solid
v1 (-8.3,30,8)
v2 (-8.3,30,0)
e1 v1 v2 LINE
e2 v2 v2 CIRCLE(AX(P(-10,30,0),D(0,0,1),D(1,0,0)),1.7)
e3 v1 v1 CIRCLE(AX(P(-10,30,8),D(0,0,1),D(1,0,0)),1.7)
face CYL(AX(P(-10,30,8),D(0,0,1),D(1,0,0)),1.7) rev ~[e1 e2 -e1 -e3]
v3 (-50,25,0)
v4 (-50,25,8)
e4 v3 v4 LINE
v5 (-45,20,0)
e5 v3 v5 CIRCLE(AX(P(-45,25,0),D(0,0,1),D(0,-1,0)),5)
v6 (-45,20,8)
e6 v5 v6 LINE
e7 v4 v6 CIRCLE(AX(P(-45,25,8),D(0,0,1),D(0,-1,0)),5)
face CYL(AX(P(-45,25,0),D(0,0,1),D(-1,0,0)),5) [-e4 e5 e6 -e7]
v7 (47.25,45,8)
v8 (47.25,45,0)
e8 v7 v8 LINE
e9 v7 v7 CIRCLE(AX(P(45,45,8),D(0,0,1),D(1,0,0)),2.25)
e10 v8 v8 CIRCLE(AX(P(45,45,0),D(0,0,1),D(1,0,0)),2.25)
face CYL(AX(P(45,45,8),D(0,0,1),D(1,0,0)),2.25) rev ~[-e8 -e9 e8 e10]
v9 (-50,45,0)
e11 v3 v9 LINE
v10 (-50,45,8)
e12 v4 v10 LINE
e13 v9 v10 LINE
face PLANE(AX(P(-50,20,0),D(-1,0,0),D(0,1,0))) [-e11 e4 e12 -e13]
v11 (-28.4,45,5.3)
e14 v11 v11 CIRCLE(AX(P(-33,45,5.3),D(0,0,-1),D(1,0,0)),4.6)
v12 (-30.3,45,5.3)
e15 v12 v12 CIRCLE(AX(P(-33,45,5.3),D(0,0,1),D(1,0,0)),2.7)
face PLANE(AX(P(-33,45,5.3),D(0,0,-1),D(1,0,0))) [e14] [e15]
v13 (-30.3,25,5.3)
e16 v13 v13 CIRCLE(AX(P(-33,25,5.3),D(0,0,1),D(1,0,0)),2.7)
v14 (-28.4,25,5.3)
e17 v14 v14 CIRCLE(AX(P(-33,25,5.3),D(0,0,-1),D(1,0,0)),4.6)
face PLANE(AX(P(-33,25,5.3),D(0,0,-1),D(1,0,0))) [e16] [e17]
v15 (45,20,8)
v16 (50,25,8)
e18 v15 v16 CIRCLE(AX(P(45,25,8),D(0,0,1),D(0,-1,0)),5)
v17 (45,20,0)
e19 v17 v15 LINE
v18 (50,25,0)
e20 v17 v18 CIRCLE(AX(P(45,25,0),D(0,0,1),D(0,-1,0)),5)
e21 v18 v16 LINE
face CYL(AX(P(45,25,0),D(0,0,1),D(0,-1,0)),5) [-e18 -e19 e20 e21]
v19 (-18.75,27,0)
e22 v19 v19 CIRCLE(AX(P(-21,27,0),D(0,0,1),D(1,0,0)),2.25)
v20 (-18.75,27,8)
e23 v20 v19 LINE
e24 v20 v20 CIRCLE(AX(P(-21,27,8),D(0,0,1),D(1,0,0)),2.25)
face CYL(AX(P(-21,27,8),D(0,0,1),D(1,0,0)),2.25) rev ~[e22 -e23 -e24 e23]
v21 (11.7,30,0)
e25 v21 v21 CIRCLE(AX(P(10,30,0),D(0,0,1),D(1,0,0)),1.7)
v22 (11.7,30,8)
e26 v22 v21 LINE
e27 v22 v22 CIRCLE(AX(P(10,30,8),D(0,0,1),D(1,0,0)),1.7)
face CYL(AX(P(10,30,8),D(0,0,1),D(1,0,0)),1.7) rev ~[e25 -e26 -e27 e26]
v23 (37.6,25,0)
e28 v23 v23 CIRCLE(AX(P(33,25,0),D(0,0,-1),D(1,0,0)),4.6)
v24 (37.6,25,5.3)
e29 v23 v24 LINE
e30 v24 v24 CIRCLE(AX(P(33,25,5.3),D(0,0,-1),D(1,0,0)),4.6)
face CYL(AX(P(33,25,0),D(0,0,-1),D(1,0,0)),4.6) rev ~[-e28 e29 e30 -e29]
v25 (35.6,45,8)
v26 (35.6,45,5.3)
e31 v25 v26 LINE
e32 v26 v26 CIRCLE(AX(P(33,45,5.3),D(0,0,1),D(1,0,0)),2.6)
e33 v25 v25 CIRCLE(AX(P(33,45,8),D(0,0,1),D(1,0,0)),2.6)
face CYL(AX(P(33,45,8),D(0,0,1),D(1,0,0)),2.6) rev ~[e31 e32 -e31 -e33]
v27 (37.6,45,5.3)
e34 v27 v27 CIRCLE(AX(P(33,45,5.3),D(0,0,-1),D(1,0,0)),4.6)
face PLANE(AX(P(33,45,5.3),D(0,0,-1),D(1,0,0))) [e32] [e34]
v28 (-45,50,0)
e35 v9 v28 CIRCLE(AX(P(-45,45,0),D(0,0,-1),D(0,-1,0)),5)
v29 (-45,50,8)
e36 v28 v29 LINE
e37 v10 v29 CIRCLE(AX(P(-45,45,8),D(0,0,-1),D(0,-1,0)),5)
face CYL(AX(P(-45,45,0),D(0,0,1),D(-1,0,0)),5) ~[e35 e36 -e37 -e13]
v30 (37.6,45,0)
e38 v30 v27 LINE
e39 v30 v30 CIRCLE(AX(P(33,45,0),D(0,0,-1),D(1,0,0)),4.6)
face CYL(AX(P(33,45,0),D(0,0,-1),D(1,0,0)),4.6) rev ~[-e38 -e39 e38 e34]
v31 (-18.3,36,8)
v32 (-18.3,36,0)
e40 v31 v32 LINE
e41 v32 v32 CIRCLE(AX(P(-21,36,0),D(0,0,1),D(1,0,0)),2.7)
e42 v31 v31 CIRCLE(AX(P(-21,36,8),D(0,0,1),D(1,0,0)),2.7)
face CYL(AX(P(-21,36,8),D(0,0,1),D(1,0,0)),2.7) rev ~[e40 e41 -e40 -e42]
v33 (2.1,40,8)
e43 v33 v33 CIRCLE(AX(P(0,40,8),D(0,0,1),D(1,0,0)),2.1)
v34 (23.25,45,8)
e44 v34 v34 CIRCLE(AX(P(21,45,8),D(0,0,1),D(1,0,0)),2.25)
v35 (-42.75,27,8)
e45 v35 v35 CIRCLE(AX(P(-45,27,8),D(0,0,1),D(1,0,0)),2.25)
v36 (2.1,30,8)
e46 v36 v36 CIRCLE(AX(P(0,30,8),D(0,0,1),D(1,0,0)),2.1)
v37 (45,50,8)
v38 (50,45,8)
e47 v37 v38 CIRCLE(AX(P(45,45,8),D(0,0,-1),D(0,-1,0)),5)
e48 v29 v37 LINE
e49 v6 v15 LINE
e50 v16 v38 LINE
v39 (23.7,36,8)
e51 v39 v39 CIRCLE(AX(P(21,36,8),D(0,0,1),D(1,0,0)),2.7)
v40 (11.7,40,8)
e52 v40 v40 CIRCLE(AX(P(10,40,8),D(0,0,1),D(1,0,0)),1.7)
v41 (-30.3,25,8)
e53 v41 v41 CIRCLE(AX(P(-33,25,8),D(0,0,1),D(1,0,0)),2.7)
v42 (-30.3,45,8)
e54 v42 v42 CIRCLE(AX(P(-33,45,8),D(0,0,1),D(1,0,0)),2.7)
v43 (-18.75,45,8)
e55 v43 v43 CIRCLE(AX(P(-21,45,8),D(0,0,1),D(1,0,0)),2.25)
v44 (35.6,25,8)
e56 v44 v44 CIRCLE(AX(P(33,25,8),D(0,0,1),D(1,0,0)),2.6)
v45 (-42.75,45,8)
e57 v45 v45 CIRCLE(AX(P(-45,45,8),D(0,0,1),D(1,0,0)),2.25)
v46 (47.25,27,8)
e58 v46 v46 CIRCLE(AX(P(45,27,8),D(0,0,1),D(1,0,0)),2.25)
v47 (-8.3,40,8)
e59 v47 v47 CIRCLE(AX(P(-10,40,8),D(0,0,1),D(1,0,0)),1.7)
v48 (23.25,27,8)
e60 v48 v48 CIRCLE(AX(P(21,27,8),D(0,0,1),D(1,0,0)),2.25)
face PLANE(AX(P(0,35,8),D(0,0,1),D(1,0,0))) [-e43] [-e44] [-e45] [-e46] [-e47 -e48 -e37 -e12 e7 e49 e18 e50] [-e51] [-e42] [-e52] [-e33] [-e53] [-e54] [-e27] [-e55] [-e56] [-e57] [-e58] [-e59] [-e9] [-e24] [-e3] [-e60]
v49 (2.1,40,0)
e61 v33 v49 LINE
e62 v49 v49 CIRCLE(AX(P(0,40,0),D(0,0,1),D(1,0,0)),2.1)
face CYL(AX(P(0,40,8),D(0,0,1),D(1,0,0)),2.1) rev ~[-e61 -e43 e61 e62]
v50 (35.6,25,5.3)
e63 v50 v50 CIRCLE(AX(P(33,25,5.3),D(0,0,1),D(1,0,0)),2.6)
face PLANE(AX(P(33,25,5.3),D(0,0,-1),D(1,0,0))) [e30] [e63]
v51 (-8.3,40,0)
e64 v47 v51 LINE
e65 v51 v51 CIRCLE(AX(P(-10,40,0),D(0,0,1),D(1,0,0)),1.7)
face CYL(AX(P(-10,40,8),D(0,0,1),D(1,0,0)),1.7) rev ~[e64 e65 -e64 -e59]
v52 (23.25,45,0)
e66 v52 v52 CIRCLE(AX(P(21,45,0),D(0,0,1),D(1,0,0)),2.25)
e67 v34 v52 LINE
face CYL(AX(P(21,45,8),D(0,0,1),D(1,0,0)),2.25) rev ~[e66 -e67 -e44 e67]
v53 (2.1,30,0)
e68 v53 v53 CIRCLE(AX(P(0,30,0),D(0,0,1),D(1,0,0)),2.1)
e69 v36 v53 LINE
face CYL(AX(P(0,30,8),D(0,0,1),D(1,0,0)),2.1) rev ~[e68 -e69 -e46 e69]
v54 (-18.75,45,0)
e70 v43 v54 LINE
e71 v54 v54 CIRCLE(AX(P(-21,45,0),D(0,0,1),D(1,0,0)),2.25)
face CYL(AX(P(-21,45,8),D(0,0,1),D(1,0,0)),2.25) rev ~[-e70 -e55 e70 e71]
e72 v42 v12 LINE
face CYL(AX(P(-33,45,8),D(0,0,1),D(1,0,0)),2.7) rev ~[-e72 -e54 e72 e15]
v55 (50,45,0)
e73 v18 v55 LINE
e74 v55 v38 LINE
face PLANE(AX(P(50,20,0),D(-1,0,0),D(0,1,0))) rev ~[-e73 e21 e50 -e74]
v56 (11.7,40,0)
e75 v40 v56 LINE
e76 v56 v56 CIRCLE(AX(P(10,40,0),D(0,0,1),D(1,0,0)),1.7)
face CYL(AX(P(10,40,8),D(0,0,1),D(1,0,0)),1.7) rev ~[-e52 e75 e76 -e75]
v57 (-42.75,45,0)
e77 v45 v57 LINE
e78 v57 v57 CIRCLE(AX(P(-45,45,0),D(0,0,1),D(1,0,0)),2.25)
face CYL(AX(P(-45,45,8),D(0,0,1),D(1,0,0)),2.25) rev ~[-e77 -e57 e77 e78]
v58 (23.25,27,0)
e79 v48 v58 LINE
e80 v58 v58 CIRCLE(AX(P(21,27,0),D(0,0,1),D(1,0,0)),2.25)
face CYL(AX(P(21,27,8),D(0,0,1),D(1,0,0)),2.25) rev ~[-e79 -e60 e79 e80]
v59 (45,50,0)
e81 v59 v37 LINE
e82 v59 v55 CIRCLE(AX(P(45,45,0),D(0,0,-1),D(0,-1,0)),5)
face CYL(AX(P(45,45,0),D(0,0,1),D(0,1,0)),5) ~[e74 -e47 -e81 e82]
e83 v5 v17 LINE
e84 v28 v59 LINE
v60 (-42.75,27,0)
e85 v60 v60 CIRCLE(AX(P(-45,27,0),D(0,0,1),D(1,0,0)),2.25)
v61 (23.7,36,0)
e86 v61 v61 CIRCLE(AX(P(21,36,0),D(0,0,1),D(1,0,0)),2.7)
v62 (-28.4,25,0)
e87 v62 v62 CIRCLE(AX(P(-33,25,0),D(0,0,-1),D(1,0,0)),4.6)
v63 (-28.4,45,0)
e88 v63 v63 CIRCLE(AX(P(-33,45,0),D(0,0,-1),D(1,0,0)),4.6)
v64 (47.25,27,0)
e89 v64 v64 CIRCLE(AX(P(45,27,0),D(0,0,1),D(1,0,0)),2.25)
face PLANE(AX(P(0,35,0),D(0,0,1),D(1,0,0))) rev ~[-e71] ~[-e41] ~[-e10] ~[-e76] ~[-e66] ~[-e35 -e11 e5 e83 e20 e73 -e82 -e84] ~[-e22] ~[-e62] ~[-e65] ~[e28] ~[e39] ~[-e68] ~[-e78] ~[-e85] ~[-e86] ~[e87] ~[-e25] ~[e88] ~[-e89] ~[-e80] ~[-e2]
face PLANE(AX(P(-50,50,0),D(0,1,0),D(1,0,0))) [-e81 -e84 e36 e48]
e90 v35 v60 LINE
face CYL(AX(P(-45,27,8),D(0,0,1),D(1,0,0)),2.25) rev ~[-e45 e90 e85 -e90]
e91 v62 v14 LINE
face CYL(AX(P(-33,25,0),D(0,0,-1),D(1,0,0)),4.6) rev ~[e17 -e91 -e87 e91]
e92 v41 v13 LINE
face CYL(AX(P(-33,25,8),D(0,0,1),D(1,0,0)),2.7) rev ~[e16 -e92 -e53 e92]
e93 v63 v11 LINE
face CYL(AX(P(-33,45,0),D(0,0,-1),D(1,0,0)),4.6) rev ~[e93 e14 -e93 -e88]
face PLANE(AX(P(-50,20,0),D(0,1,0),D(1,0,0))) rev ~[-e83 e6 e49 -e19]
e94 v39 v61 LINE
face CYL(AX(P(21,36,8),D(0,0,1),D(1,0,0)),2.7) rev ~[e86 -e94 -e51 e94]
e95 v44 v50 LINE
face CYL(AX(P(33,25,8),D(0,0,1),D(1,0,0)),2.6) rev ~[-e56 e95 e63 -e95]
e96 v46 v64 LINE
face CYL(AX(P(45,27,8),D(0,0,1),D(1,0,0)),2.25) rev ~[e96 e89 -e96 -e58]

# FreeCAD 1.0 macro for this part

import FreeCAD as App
import Part
import Sketcher

V = App.Vector
Q = App.Units.Quantity


def edges_at(feature, points):
    """Names of the edges that pass closest to the given points."""
    edges = feature.Shape.Edges
    near = lambda p: min(range(len(edges)), key=lambda i: edges[i].distToShape(Part.Vertex(*p))[0])
    return sorted({f"Edge{near(p) + 1}" for p in points})

doc = App.newDocument("Part")
body = doc.addObject("PartDesign::Body", "Body")

# Sketch on XY plane
sketch1 = body.newObject("Sketcher::SketchObject", "Sketch")
sketch1.AttachmentSupport = (doc.getObject("XY_Plane"), [""])
sketch1.MapMode = "FlatFace"
sketch1.addGeometry([
    Part.LineSegment(V(-50, 50, 0), V(-50, 20, 0)),
    Part.LineSegment(V(-50, 20, 0), V(50, 20, 0)),
    Part.LineSegment(V(50, 20, 0), V(50, 50, 0)),
    Part.LineSegment(V(50, 50, 0), V(-50, 50, 0)),
], False)
sketch1.addConstraint([
    Sketcher.Constraint("Coincident", 0, 2, 1, 1),
    Sketcher.Constraint("Coincident", 1, 2, 2, 1),
    Sketcher.Constraint("Coincident", 2, 2, 3, 1),
    Sketcher.Constraint("Coincident", 3, 2, 0, 1),
    Sketcher.Constraint("Vertical", 0),
    Sketcher.Constraint("Horizontal", 1),
    Sketcher.Constraint("Vertical", 2),
    Sketcher.Constraint("Horizontal", 3),
    Sketcher.Constraint("DistanceX", 1, 1, 1, 2, Q("100 mm")),
    Sketcher.Constraint("DistanceY", 0, 2, 0, 1, Q("30 mm")),
    Sketcher.Constraint("DistanceX", 0, 2, -1, 1, Q("50 mm")),
    Sketcher.Constraint("DistanceY", -1, 1, 0, 2, Q("20 mm")),
])
pad1 = body.newObject("PartDesign::Pad", "Pad")
pad1.Profile = sketch1
pad1.Length = 8

# Sketch on XY plane
sketch2 = body.newObject("Sketcher::SketchObject", "Sketch001")
sketch2.AttachmentSupport = (doc.getObject("XY_Plane"), [""])
sketch2.MapMode = "FlatFace"
sketch2.AttachmentOffset = App.Placement(V(0, 0, 8), App.Rotation())
sketch2.addGeometry([
    Part.Circle(V(-21, 45, 0), V(0, 0, 1), 2.2),  # 0
    Part.Circle(V(-45, 27, 0), V(0, 0, 1), 2.2),  # 1
    Part.Circle(V(-45, 45, 0), V(0, 0, 1), 2.2),  # 2
    Part.Circle(V(-21, 27, 0), V(0, 0, 1), 2.2),  # 3
    Part.Circle(V(21, 27, 0), V(0, 0, 1), 2.2),  # 4
    Part.Circle(V(21, 45, 0), V(0, 0, 1), 2.2),  # 5
    Part.Circle(V(45, 27, 0), V(0, 0, 1), 2.2),  # 6
    Part.Circle(V(45, 45, 0), V(0, 0, 1), 2.2),  # 7
    Part.Circle(V(-33, 45, 0), V(0, 0, 1), 2.7),  # 8
    Part.Circle(V(-33, 25, 0), V(0, 0, 1), 2.7),  # 9
    Part.Circle(V(33, 45, 0), V(0, 0, 1), 2.6),  # 10
    Part.Circle(V(33, 25, 0), V(0, 0, 1), 2.6),  # 11
    Part.Circle(V(-21, 36, 0), V(0, 0, 1), 2.7),  # 12
    Part.Circle(V(21, 36, 0), V(0, 0, 1), 2.7),  # 13
    Part.Circle(V(0, 30, 0), V(0, 0, 1), 2.1),  # 14
    Part.Circle(V(0, 40, 0), V(0, 0, 1), 2.1),  # 15
], False)
sketch2.addConstraint([
    Sketcher.Constraint("Equal", 0, 1),
    Sketcher.Constraint("Equal", 1, 2),
    Sketcher.Constraint("Equal", 2, 3),
    Sketcher.Constraint("Equal", 3, 4),
    Sketcher.Constraint("Equal", 4, 5),
    Sketcher.Constraint("Equal", 5, 6),
    Sketcher.Constraint("Equal", 6, 7),
    Sketcher.Constraint("Equal", 8, 9),
    Sketcher.Constraint("Equal", 10, 11),
    Sketcher.Constraint("Equal", 9, 12),
    Sketcher.Constraint("Equal", 12, 13),
    Sketcher.Constraint("Equal", 14, 15),
    Sketcher.Constraint("Symmetric", 3, 3, 4, 3, -2),
    Sketcher.Constraint("Symmetric", 0, 3, 5, 3, -2),
    Sketcher.Constraint("Symmetric", 1, 3, 6, 3, -2),
    Sketcher.Constraint("Symmetric", 2, 3, 7, 3, -2),
    Sketcher.Constraint("Symmetric", 8, 3, 10, 3, -2),
    Sketcher.Constraint("Symmetric", 9, 3, 11, 3, -2),
    Sketcher.Constraint("Symmetric", 12, 3, 13, 3, -2),
    Sketcher.Constraint("PointOnObject", 14, 3, -2),
    Sketcher.Constraint("PointOnObject", 15, 3, -2),
    Sketcher.Constraint("Horizontal", 0, 3, 2, 3),
    Sketcher.Constraint("Horizontal", 1, 3, 3, 3),
    Sketcher.Constraint("Horizontal", 7, 3, 8, 3),
    Sketcher.Constraint("Vertical", 1, 3, 2, 3),
    Sketcher.Constraint("Vertical", 0, 3, 3, 3),
    Sketcher.Constraint("Vertical", 8, 3, 9, 3),
    Sketcher.Constraint("Vertical", 3, 3, 12, 3),
    Sketcher.Constraint("Diameter", 0, Q("4.5 mm")),
    Sketcher.Constraint("Diameter", 8, Q("5.4 mm")),
    Sketcher.Constraint("Diameter", 10, Q("5.2 mm")),
    Sketcher.Constraint("Diameter", 14, Q("4.2 mm")),
    Sketcher.Constraint("DistanceX", 0, 3, -1, 1, Q("21 mm")),
    Sketcher.Constraint("DistanceY", -1, 1, 0, 3, Q("45 mm")),
    Sketcher.Constraint("DistanceX", 1, 3, -1, 1, Q("45 mm")),
    Sketcher.Constraint("DistanceY", -1, 1, 1, 3, Q("27 mm")),
    Sketcher.Constraint("DistanceX", 8, 3, -1, 1, Q("33 mm")),
    Sketcher.Constraint("DistanceY", -1, 1, 9, 3, Q("25 mm")),
    Sketcher.Constraint("DistanceY", -1, 1, 12, 3, Q("36 mm")),
    Sketcher.Constraint("DistanceY", -1, 1, 14, 3, Q("30 mm")),
    Sketcher.Constraint("DistanceY", -1, 1, 15, 3, Q("40 mm")),
])
pocket1 = body.newObject("PartDesign::Pocket", "Pocket")
pocket1.Profile = sketch2
pocket1.Type = "ThroughAll"

# Sketch on XY plane
sketch3 = body.newObject("Sketcher::SketchObject", "Sketch002")
sketch3.AttachmentSupport = (doc.getObject("XY_Plane"), [""])
sketch3.MapMode = "FlatFace"
sketch3.AttachmentOffset = App.Placement(V(0, 0, 8), App.Rotation())
sketch3.addGeometry([
    Part.Circle(V(-10, 30, 0), V(0, 0, 1), 1.7),
    Part.Circle(V(-10, 40, 0), V(0, 0, 1), 1.7),
    Part.Circle(V(10, 40, 0), V(0, 0, 1), 1.7),
    Part.Circle(V(10, 30, 0), V(0, 0, 1), 1.7),
], False)
sketch3.addConstraint([
    Sketcher.Constraint("Equal", 0, 1),
    Sketcher.Constraint("Equal", 1, 2),
    Sketcher.Constraint("Equal", 2, 3),
    Sketcher.Constraint("Symmetric", 1, 3, 2, 3, -2),
    Sketcher.Constraint("Symmetric", 0, 3, 3, 3, -2),
    Sketcher.Constraint("Vertical", 0, 3, 1, 3),
    Sketcher.Constraint("Diameter", 0, Q("3.4 mm")),
    Sketcher.Constraint("DistanceX", 0, 3, -1, 1, Q("10 mm")),
    Sketcher.Constraint("DistanceY", -1, 1, 0, 3, Q("30 mm")),
    Sketcher.Constraint("DistanceY", -1, 1, 1, 3, Q("40 mm")),
])
pocket2 = body.newObject("PartDesign::Pocket", "Pocket001")
pocket2.Profile = sketch3
pocket2.Type = "ThroughAll"

# Sketch on XY plane
sketch4 = body.newObject("Sketcher::SketchObject", "Sketch003")
sketch4.AttachmentSupport = (doc.getObject("XY_Plane"), [""])
sketch4.MapMode = "FlatFace"
sketch4.addGeometry([
    Part.Circle(V(-33, 25, 0), V(0, 0, 1), 4.6),
    Part.Circle(V(33, 45, 0), V(0, 0, 1), 4.6),
    Part.Circle(V(33, 25, 0), V(0, 0, 1), 4.6),
    Part.Circle(V(-33, 45, 0), V(0, 0, 1), 4.6),
], False)
sketch4.addConstraint([
    Sketcher.Constraint("Equal", 0, 1),
    Sketcher.Constraint("Equal", 1, 2),
    Sketcher.Constraint("Equal", 2, 3),
    Sketcher.Constraint("Symmetric", 0, 3, 2, 3, -2),
    Sketcher.Constraint("Symmetric", 1, 3, 3, 3, -2),
    Sketcher.Constraint("Vertical", 1, 3, 2, 3),
    Sketcher.Constraint("Diameter", 0, Q("9.2 mm")),
    Sketcher.Constraint("DistanceX", 0, 3, -1, 1, Q("33 mm")),
    Sketcher.Constraint("DistanceY", -1, 1, 0, 3, Q("25 mm")),
    Sketcher.Constraint("DistanceY", -1, 1, 1, 3, Q("45 mm")),
])
pocket3 = body.newObject("PartDesign::Pocket", "Pocket002")
pocket3.Profile = sketch4
pocket3.Length = 5.3
pocket3.Reversed = True
doc.recompute()

fillet = body.newObject("PartDesign::Fillet", "Fillet")
fillet.Base = (pocket3, edges_at(pocket3, [
    (-50, 20, 4),
    (50, 20, 4),
    (-50, 50, 4),
    (50, 50, 4),
]))
fillet.Radius = 5

doc.recompute()
